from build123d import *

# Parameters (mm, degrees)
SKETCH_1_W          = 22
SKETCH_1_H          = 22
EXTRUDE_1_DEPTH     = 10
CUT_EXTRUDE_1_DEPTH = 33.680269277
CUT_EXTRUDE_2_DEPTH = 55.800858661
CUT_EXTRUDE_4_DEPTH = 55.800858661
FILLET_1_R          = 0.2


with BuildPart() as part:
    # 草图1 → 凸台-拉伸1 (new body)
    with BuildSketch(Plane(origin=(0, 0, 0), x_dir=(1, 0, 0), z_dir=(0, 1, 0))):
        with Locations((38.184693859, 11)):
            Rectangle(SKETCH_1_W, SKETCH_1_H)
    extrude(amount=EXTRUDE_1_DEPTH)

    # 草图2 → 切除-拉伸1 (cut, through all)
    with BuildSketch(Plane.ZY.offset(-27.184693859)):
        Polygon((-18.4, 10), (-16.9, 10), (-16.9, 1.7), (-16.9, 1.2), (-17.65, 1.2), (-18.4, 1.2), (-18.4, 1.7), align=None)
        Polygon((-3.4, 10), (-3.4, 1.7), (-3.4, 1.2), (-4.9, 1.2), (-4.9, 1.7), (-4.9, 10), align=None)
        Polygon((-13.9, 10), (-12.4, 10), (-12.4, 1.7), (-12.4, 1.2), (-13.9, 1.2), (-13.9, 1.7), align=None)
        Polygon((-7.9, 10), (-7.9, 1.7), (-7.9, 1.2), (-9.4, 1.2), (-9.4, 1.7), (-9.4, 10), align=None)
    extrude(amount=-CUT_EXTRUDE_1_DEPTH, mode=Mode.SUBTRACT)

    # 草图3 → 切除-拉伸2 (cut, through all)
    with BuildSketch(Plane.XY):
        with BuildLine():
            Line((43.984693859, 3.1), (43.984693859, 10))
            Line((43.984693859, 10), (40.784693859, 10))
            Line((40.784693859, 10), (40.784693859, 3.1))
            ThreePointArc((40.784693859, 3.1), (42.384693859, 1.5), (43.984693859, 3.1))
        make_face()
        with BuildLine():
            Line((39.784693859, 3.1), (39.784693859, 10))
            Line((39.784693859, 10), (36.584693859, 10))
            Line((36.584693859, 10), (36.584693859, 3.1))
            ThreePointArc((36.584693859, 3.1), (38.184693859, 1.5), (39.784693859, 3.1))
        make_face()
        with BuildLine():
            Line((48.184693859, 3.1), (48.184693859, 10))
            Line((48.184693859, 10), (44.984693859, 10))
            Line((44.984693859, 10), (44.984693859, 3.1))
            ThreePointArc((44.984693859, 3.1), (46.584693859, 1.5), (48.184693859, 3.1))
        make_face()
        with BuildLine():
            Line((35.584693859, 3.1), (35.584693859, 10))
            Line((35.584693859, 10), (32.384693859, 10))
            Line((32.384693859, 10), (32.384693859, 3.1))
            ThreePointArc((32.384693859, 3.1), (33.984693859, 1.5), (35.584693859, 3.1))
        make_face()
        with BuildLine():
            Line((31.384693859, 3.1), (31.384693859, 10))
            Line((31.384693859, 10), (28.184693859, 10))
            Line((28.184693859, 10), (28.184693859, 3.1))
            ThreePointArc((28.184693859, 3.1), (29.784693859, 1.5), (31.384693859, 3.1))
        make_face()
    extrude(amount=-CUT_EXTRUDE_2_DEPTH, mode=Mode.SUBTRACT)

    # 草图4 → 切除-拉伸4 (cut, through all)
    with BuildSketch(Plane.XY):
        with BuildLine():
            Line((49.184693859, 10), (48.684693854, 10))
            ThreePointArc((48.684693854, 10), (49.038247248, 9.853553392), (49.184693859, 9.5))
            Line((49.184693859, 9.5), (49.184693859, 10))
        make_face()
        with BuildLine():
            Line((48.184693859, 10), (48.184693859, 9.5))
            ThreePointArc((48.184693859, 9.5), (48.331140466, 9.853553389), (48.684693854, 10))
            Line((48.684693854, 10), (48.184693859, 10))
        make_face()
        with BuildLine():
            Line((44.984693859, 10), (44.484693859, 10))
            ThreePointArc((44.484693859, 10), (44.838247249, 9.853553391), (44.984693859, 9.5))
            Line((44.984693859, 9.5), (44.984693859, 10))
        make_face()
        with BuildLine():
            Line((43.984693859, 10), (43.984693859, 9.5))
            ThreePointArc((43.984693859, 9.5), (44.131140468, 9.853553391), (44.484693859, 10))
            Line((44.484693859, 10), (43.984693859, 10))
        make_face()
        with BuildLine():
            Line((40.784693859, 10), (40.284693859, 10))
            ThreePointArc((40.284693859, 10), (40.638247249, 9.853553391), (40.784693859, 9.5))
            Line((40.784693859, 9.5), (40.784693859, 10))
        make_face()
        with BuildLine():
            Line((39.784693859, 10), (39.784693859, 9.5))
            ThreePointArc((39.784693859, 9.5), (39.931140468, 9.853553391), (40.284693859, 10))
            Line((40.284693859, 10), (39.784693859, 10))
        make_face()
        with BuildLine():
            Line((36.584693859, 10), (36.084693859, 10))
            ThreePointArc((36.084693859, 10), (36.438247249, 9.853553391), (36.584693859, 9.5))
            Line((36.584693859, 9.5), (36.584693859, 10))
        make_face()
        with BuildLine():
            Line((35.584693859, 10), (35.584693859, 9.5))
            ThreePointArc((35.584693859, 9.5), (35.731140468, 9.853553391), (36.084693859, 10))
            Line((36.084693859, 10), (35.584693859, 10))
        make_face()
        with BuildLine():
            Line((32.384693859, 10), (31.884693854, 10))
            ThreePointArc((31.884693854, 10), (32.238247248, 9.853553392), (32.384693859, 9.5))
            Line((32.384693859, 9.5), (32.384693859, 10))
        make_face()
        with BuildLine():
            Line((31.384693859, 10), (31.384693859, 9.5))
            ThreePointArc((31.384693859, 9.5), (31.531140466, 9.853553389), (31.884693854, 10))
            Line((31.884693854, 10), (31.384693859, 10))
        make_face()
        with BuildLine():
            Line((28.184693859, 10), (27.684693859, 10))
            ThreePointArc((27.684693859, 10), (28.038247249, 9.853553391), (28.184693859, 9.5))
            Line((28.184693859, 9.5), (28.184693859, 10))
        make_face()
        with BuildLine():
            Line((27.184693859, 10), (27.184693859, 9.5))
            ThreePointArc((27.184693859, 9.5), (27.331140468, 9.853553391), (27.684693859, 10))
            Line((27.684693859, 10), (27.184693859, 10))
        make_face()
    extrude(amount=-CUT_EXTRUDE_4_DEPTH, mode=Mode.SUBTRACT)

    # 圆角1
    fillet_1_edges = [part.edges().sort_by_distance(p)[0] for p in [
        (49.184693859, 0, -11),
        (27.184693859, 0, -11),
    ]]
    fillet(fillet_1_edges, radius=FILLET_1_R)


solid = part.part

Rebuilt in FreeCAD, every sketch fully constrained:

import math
import FreeCAD as App
import Part
import Sketcher

V = App.Vector
Q = App.Units.Quantity


def edges_at(feature, points):
    """Names of the edges that pass closest to the given points."""
    edges = feature.Shape.Edges
    near = lambda p: min(range(len(edges)), key=lambda i: edges[i].distToShape(Part.Vertex(*p))[0])
    return sorted({f"Edge{near(p) + 1}" for p in points})

doc = App.newDocument("Part")
body = doc.addObject("PartDesign::Body", "Body")

sketch1 = body.newObject("Sketcher::SketchObject", "Sketch")
sketch1.AttachmentSupport = (doc.getObject("XZ_Plane"), [""])
sketch1.MapMode = "FlatFace"
sketch1.addGeometry(Part.LineSegment(V(27, -22, 0), V(27, 0, 0)), False)
sketch1.addGeometry(Part.LineSegment(V(27, 0, 0), V(49, 0, 0)), False)
sketch1.addGeometry(Part.LineSegment(V(49, 0, 0), V(49, -22, 0)), False)
sketch1.addGeometry(Part.LineSegment(V(49, -22, 0), V(27, -22, 0)), False)
sketch1.addConstraint(Sketcher.Constraint("Coincident", 0, 2, 1, 1))
sketch1.addConstraint(Sketcher.Constraint("Coincident", 1, 2, 2, 1))
sketch1.addConstraint(Sketcher.Constraint("Coincident", 2, 2, 3, 1))
sketch1.addConstraint(Sketcher.Constraint("Coincident", 3, 2, 0, 1))
sketch1.addConstraint(Sketcher.Constraint("Vertical", 0))
sketch1.addConstraint(Sketcher.Constraint("Horizontal", 1))
sketch1.addConstraint(Sketcher.Constraint("Vertical", 2))
sketch1.addConstraint(Sketcher.Constraint("Horizontal", 3))
sketch1.addConstraint(Sketcher.Constraint("PointOnObject", 0, 2, -1))
sketch1.addConstraint(Sketcher.Constraint("Equal", 3, 0))
sketch1.addConstraint(Sketcher.Constraint("DistanceX", 1, 1, 1, 2, Q("22 mm")))
sketch1.addConstraint(Sketcher.Constraint("DistanceX", -1, 1, 0, 2, Q("27.184694 mm")))
pad1 = body.newObject("PartDesign::Pad", "Pad")
pad1.Profile = sketch1
pad1.Length = 10
pad1.Reversed = True

sketch2 = body.newObject("Sketcher::SketchObject", "Sketch001")
sketch2.AttachmentSupport = (doc.getObject("YZ_Plane"), [""])
sketch2.MapMode = "FlatFace"
sketch2.AttachmentOffset = App.Placement(V(0, 0, 27.184694), App.Rotation())
sketch2.addGeometry(Part.LineSegment(V(10, -16.9, 0), V(10, -18.4, 0)), False)
sketch2.addGeometry(Part.LineSegment(V(10, -18.4, 0), V(1.2, -18.4, 0)), False)
sketch2.addGeometry(Part.LineSegment(V(1.2, -18.4, 0), V(1.2, -16.9, 0)), False)
sketch2.addGeometry(Part.LineSegment(V(1.2, -16.9, 0), V(10, -16.9, 0)), False)
sketch2.addGeometry(Part.LineSegment(V(1.2, -3.4, 0), V(10, -3.4, 0)), False)
sketch2.addGeometry(Part.LineSegment(V(10, -3.4, 0), V(10, -4.9, 0)), False)
sketch2.addGeometry(Part.LineSegment(V(10, -4.9, 0), V(1.2, -4.9, 0)), False)
sketch2.addGeometry(Part.LineSegment(V(1.2, -4.9, 0), V(1.2, -3.4, 0)), False)
sketch2.addGeometry(Part.LineSegment(V(10, -12.4, 0), V(10, -13.9, 0)), False)
sketch2.addGeometry(Part.LineSegment(V(10, -13.9, 0), V(1.2, -13.9, 0)), False)
sketch2.addGeometry(Part.LineSegment(V(1.2, -13.9, 0), V(1.2, -12.4, 0)), False)
sketch2.addGeometry(Part.LineSegment(V(1.2, -12.4, 0), V(10, -12.4, 0)), False)
sketch2.addGeometry(Part.LineSegment(V(1.2, -7.9, 0), V(10, -7.9, 0)), False)
sketch2.addGeometry(Part.LineSegment(V(10, -7.9, 0), V(10, -9.4, 0)), False)
sketch2.addGeometry(Part.LineSegment(V(10, -9.4, 0), V(1.2, -9.4, 0)), False)
sketch2.addGeometry(Part.LineSegment(V(1.2, -9.4, 0), V(1.2, -7.9, 0)), False)
sketch2.addConstraint(Sketcher.Constraint("Coincident", 0, 2, 1, 1))
sketch2.addConstraint(Sketcher.Constraint("Coincident", 1, 2, 2, 1))
sketch2.addConstraint(Sketcher.Constraint("Coincident", 2, 2, 3, 1))
sketch2.addConstraint(Sketcher.Constraint("Coincident", 3, 2, 0, 1))
sketch2.addConstraint(Sketcher.Constraint("Coincident", 4, 2, 5, 1))
sketch2.addConstraint(Sketcher.Constraint("Coincident", 5, 2, 6, 1))
sketch2.addConstraint(Sketcher.Constraint("Coincident", 6, 2, 7, 1))
sketch2.addConstraint(Sketcher.Constraint("Coincident", 7, 2, 4, 1))
sketch2.addConstraint(Sketcher.Constraint("Coincident", 8, 2, 9, 1))
sketch2.addConstraint(Sketcher.Constraint("Coincident", 9, 2, 10, 1))
sketch2.addConstraint(Sketcher.Constraint("Coincident", 10, 2, 11, 1))
sketch2.addConstraint(Sketcher.Constraint("Coincident", 11, 2, 8, 1))
sketch2.addConstraint(Sketcher.Constraint("Coincident", 12, 2, 13, 1))
sketch2.addConstraint(Sketcher.Constraint("Coincident", 13, 2, 14, 1))
sketch2.addConstraint(Sketcher.Constraint("Coincident", 14, 2, 15, 1))
sketch2.addConstraint(Sketcher.Constraint("Coincident", 15, 2, 12, 1))
sketch2.addConstraint(Sketcher.Constraint("Vertical", 0))
sketch2.addConstraint(Sketcher.Constraint("Horizontal", 1))
sketch2.addConstraint(Sketcher.Constraint("Vertical", 2))
sketch2.addConstraint(Sketcher.Constraint("Horizontal", 3))
sketch2.addConstraint(Sketcher.Constraint("Horizontal", 4))
sketch2.addConstraint(Sketcher.Constraint("Vertical", 5))
sketch2.addConstraint(Sketcher.Constraint("Horizontal", 6))
sketch2.addConstraint(Sketcher.Constraint("Vertical", 7))
sketch2.addConstraint(Sketcher.Constraint("Vertical", 8))
sketch2.addConstraint(Sketcher.Constraint("Horizontal", 9))
sketch2.addConstraint(Sketcher.Constraint("Vertical", 10))
sketch2.addConstraint(Sketcher.Constraint("Horizontal", 11))
sketch2.addConstraint(Sketcher.Constraint("Horizontal", 12))
sketch2.addConstraint(Sketcher.Constraint("Vertical", 13))
sketch2.addConstraint(Sketcher.Constraint("Horizontal", 14))
sketch2.addConstraint(Sketcher.Constraint("Vertical", 15))
sketch2.addConstraint(Sketcher.Constraint("Vertical", 3, 2, 4, 2))
sketch2.addConstraint(Sketcher.Constraint("Vertical", 2, 2, 6, 2))
sketch2.addConstraint(Sketcher.Constraint("Vertical", 5, 2, 8, 2))
sketch2.addConstraint(Sketcher.Constraint("Vertical", 7, 2, 9, 2))
sketch2.addConstraint(Sketcher.Constraint("Vertical", 11, 2, 12, 2))
sketch2.addConstraint(Sketcher.Constraint("Vertical", 10, 2, 14, 2))
sketch2.addConstraint(Sketcher.Constraint("Equal", 2, 5))
sketch2.addConstraint(Sketcher.Constraint("Equal", 7, 8))
sketch2.addConstraint(Sketcher.Constraint("Equal", 10, 13))
sketch2.addConstraint(Sketcher.Constraint("DistanceX", 1, 2, 1, 1, Q("8.8 mm")))
sketch2.addConstraint(Sketcher.Constraint("DistanceY", 0, 2, 0, 1, Q("1.5 mm")))
sketch2.addConstraint(Sketcher.Constraint("DistanceX", -1, 1, 0, 2, Q("10 mm")))
sketch2.addConstraint(Sketcher.Constraint("DistanceY", 0, 2, 4, 2, Q("15 mm")))
sketch2.addConstraint(Sketcher.Constraint("DistanceY", 3, 2, 8, 2, Q("3 mm")))
sketch2.addConstraint(Sketcher.Constraint("DistanceY", 12, 2, 5, 2, Q("3 mm")))
sketch2.addConstraint(Sketcher.Constraint("DistanceY", 0, 2, -1, 1, Q("18.4 mm")))
pocket1 = body.newObject("PartDesign::Pocket", "Pocket")
pocket1.Profile = sketch2
pocket1.Type = "ThroughAll"
pocket1.Reversed = True

sketch3 = body.newObject("Sketcher::SketchObject", "Sketch002")
sketch3.AttachmentSupport = (doc.getObject("XY_Plane"), [""])
sketch3.MapMode = "FlatFace"
sketch3.addGeometry(Part.LineSegment(V(44, 3.1, 0), V(44, 10, 0)), False)
sketch3.addGeometry(Part.LineSegment(V(44, 10, 0), V(40.8, 10, 0)), False)
sketch3.addGeometry(Part.LineSegment(V(40.8, 10, 0), V(40.8, 3.1, 0)), False)
sketch3.addGeometry(Part.ArcOfCircle(Part.Circle(V(42.4, 3.1, 0), V(0, 0, 1), 1.6), math.radians(180), math.radians(360)), False)
sketch3.addGeometry(Part.LineSegment(V(39.8, 3.1, 0), V(39.8, 10, 0)), False)
sketch3.addGeometry(Part.LineSegment(V(39.8, 10, 0), V(36.6, 10, 0)), False)
sketch3.addGeometry(Part.LineSegment(V(36.6, 10, 0), V(36.6, 3.1, 0)), False)
sketch3.addGeometry(Part.ArcOfCircle(Part.Circle(V(38.2, 3.1, 0), V(0, 0, 1), 1.6), math.radians(180), math.radians(360)), False)
sketch3.addGeometry(Part.LineSegment(V(48.2, 3.1, 0), V(48.2, 10, 0)), False)
sketch3.addGeometry(Part.LineSegment(V(48.2, 10, 0), V(45, 10, 0)), False)
sketch3.addGeometry(Part.LineSegment(V(45, 10, 0), V(45, 3.1, 0)), False)
sketch3.addGeometry(Part.ArcOfCircle(Part.Circle(V(46.6, 3.1, 0), V(0, 0, 1), 1.6), math.radians(180), math.radians(360)), False)
sketch3.addGeometry(Part.LineSegment(V(35.6, 3.1, 0), V(35.6, 10, 0)), False)
sketch3.addGeometry(Part.LineSegment(V(35.6, 10, 0), V(32.4, 10, 0)), False)
sketch3.addGeometry(Part.LineSegment(V(32.4, 10, 0), V(32.4, 3.1, 0)), False)
sketch3.addGeometry(Part.ArcOfCircle(Part.Circle(V(34, 3.1, 0), V(0, 0, 1), 1.6), math.radians(180), math.radians(360)), False)
sketch3.addGeometry(Part.LineSegment(V(31.4, 3.1, 0), V(31.4, 10, 0)), False)
sketch3.addGeometry(Part.LineSegment(V(31.4, 10, 0), V(28.2, 10, 0)), False)
sketch3.addGeometry(Part.LineSegment(V(28.2, 10, 0), V(28.2, 3.1, 0)), False)
sketch3.addGeometry(Part.ArcOfCircle(Part.Circle(V(29.8, 3.1, 0), V(0, 0, 1), 1.6), math.radians(180), math.radians(360)), False)
sketch3.addConstraint(Sketcher.Constraint("Coincident", 0, 2, 1, 1))
sketch3.addConstraint(Sketcher.Constraint("Coincident", 1, 2, 2, 1))
sketch3.addConstraint(Sketcher.Constraint("Tangent", 2, 2, 3, 1))
sketch3.addConstraint(Sketcher.Constraint("Tangent", 3, 2, 0, 1))
sketch3.addConstraint(Sketcher.Constraint("Coincident", 4, 2, 5, 1))
sketch3.addConstraint(Sketcher.Constraint("Coincident", 5, 2, 6, 1))
sketch3.addConstraint(Sketcher.Constraint("Tangent", 6, 2, 7, 1))
sketch3.addConstraint(Sketcher.Constraint("Tangent", 7, 2, 4, 1))
sketch3.addConstraint(Sketcher.Constraint("Coincident", 8, 2, 9, 1))
sketch3.addConstraint(Sketcher.Constraint("Coincident", 9, 2, 10, 1))
sketch3.addConstraint(Sketcher.Constraint("Tangent", 10, 2, 11, 1))
sketch3.addConstraint(Sketcher.Constraint("Tangent", 11, 2, 8, 1))
sketch3.addConstraint(Sketcher.Constraint("Coincident", 12, 2, 13, 1))
sketch3.addConstraint(Sketcher.Constraint("Coincident", 13, 2, 14, 1))
sketch3.addConstraint(Sketcher.Constraint("Tangent", 14, 2, 15, 1))
sketch3.addConstraint(Sketcher.Constraint("Tangent", 15, 2, 12, 1))
sketch3.addConstraint(Sketcher.Constraint("Coincident", 16, 2, 17, 1))
sketch3.addConstraint(Sketcher.Constraint("Coincident", 17, 2, 18, 1))
sketch3.addConstraint(Sketcher.Constraint("Tangent", 18, 2, 19, 1))
sketch3.addConstraint(Sketcher.Constraint("Tangent", 19, 2, 16, 1))
sketch3.addConstraint(Sketcher.Constraint("Vertical", 0))
sketch3.addConstraint(Sketcher.Constraint("Horizontal", 1))
sketch3.addConstraint(Sketcher.Constraint("Vertical", 2))
sketch3.addConstraint(Sketcher.Constraint("Vertical", 4))
sketch3.addConstraint(Sketcher.Constraint("Horizontal", 5))
sketch3.addConstraint(Sketcher.Constraint("Vertical", 6))
sketch3.addConstraint(Sketcher.Constraint("Vertical", 8))
sketch3.addConstraint(Sketcher.Constraint("Horizontal", 9))
sketch3.addConstraint(Sketcher.Constraint("Vertical", 10))
sketch3.addConstraint(Sketcher.Constraint("Vertical", 12))
sketch3.addConstraint(Sketcher.Constraint("Horizontal", 13))
sketch3.addConstraint(Sketcher.Constraint("Vertical", 14))
sketch3.addConstraint(Sketcher.Constraint("Vertical", 16))
sketch3.addConstraint(Sketcher.Constraint("Horizontal", 17))
sketch3.addConstraint(Sketcher.Constraint("Vertical", 18))
sketch3.addConstraint(Sketcher.Constraint("Equal", 3, 7))
sketch3.addConstraint(Sketcher.Constraint("Equal", 7, 11))
sketch3.addConstraint(Sketcher.Constraint("Equal", 11, 15))
sketch3.addConstraint(Sketcher.Constraint("Equal", 15, 19))
sketch3.addConstraint(Sketcher.Constraint("Horizontal", 3, 3, 7, 3))
sketch3.addConstraint(Sketcher.Constraint("Horizontal", 7, 3, 11, 3))
sketch3.addConstraint(Sketcher.Constraint("Horizontal", 11, 3, 15, 3))
sketch3.addConstraint(Sketcher.Constraint("Horizontal", 15, 3, 19, 3))
sketch3.addConstraint(Sketcher.Constraint("Horizontal", 1, 2, 4, 2))
sketch3.addConstraint(Sketcher.Constraint("Horizontal", 5, 2, 8, 2))
sketch3.addConstraint(Sketcher.Constraint("Horizontal", 9, 2, 12, 2))
sketch3.addConstraint(Sketcher.Constraint("Horizontal", 13, 2, 16, 2))
sketch3.addConstraint(Sketcher.Constraint("Radius", 3, Q("1.6 mm")))
sketch3.addConstraint(Sketcher.Constraint("DistanceY", 0, 1, 0, 2, Q("6.9 mm")))
sketch3.addConstraint(Sketcher.Constraint("DistanceY", -1, 1, 0, 2, Q("10 mm")))
sketch3.addConstraint(Sketcher.Constraint("DistanceX", 15, 3, 0, 2, Q("10 mm")))
sketch3.addConstraint(Sketcher.Constraint("DistanceX", 4, 2, 1, 2, Q("1 mm")))
sketch3.addConstraint(Sketcher.Constraint("DistanceX", 0, 2, 9, 2, Q("1 mm")))
sketch3.addConstraint(Sketcher.Constraint("DistanceX", 16, 2, 13, 2, Q("1 mm")))
sketch3.addConstraint(Sketcher.Constraint("DistanceX", -1, 1, 3, 3, Q("42.384694 mm")))
pocket2 = body.newObject("PartDesign::Pocket", "Pocket001")
pocket2.Profile = sketch3
pocket2.Type = "ThroughAll"

sketch4 = body.newObject("Sketcher::SketchObject", "Sketch003")
sketch4.AttachmentSupport = (doc.getObject("XY_Plane"), [""])
sketch4.MapMode = "FlatFace"
sketch4.addGeometry(Part.LineSegment(V(49.18, 10, 0), V(48.68, 10, 0)), False)
sketch4.addGeometry(Part.ArcOfCircle(Part.Circle(V(48.68, 9.5, 0), V(0, 0, 1), 0.5), math.radians(0), math.radians(90)), False)
sketch4.addGeometry(Part.LineSegment(V(49.18, 9.5, 0), V(49.18, 10, 0)), False)
sketch4.addGeometry(Part.LineSegment(V(48.18, 10, 0), V(48.18, 9.5, 0)), False)
sketch4.addGeometry(Part.ArcOfCircle(Part.Circle(V(48.68, 9.5, 0), V(0, 0, 1), 0.5), math.radians(90), math.radians(180)), False)
sketch4.addGeometry(Part.LineSegment(V(48.68, 10, 0), V(48.18, 10, 0)), False)
sketch4.addGeometry(Part.LineSegment(V(44.98, 10, 0), V(44.48, 10, 0)), False)
sketch4.addGeometry(Part.ArcOfCircle(Part.Circle(V(44.48, 9.5, 0), V(0, 0, 1), 0.5), math.radians(0), math.radians(90)), False)
sketch4.addGeometry(Part.LineSegment(V(44.98, 9.5, 0), V(44.98, 10, 0)), False)
sketch4.addGeometry(Part.LineSegment(V(43.98, 10, 0), V(43.98, 9.5, 0)), False)
sketch4.addGeometry(Part.ArcOfCircle(Part.Circle(V(44.48, 9.5, 0), V(0, 0, 1), 0.5), math.radians(90), math.radians(180)), False)
sketch4.addGeometry(Part.LineSegment(V(44.48, 10, 0), V(43.98, 10, 0)), False)
sketch4.addGeometry(Part.LineSegment(V(40.78, 10, 0), V(40.28, 10, 0)), False)
sketch4.addGeometry(Part.ArcOfCircle(Part.Circle(V(40.28, 9.5, 0), V(0, 0, 1), 0.5), math.radians(0), math.radians(90)), False)
sketch4.addGeometry(Part.LineSegment(V(40.78, 9.5, 0), V(40.78, 10, 0)), False)
sketch4.addGeometry(Part.LineSegment(V(39.78, 10, 0), V(39.78, 9.5, 0)), False)
sketch4.addGeometry(Part.ArcOfCircle(Part.Circle(V(40.28, 9.5, 0), V(0, 0, 1), 0.5), math.radians(90), math.radians(180)), False)
sketch4.addGeometry(Part.LineSegment(V(40.28, 10, 0), V(39.78, 10, 0)), False)
sketch4.addGeometry(Part.LineSegment(V(36.58, 10, 0), V(36.08, 10, 0)), False)
sketch4.addGeometry(Part.ArcOfCircle(Part.Circle(V(36.08, 9.5, 0), V(0, 0, 1), 0.5), math.radians(0), math.radians(90)), False)
sketch4.addGeometry(Part.LineSegment(V(36.58, 9.5, 0), V(36.58, 10, 0)), False)
sketch4.addGeometry(Part.LineSegment(V(35.58, 10, 0), V(35.58, 9.5, 0)), False)
sketch4.addGeometry(Part.ArcOfCircle(Part.Circle(V(36.08, 9.5, 0), V(0, 0, 1), 0.5), math.radians(90), math.radians(180)), False)
sketch4.addGeometry(Part.LineSegment(V(36.08, 10, 0), V(35.58, 10, 0)), False)
sketch4.addGeometry(Part.LineSegment(V(32.38, 10, 0), V(31.88, 10, 0)), False)
sketch4.addGeometry(Part.ArcOfCircle(Part.Circle(V(31.88, 9.5, 0), V(0, 0, 1), 0.5), math.radians(0), math.radians(90)), False)
sketch4.addGeometry(Part.LineSegment(V(32.38, 9.5, 0), V(32.38, 10, 0)), False)
sketch4.addGeometry(Part.LineSegment(V(31.38, 10, 0), V(31.38, 9.5, 0)), False)
sketch4.addGeometry(Part.ArcOfCircle(Part.Circle(V(31.88, 9.5, 0), V(0, 0, 1), 0.5), math.radians(90), math.radians(180)), False)
sketch4.addGeometry(Part.LineSegment(V(31.88, 10, 0), V(31.38, 10, 0)), False)
sketch4.addGeometry(Part.LineSegment(V(28.18, 10, 0), V(27.68, 10, 0)), False)
sketch4.addGeometry(Part.ArcOfCircle(Part.Circle(V(27.68, 9.5, 0), V(0, 0, 1), 0.5), math.radians(0), math.radians(90)), False)
sketch4.addGeometry(Part.LineSegment(V(28.18, 9.5, 0), V(28.18, 10, 0)), False)
sketch4.addGeometry(Part.LineSegment(V(27.18, 10, 0), V(27.18, 9.5, 0)), False)
sketch4.addGeometry(Part.ArcOfCircle(Part.Circle(V(27.68, 9.5, 0), V(0, 0, 1), 0.5), math.radians(90), math.radians(180)), False)
sketch4.addGeometry(Part.LineSegment(V(27.68, 10, 0), V(27.18, 10, 0)), False)
sketch4.addConstraint(Sketcher.Constraint("Tangent", 0, 2, 1, 2))
sketch4.addConstraint(Sketcher.Constraint("Tangent", 1, 1, 2, 1))
sketch4.addConstraint(Sketcher.Constraint("Coincident", 2, 2, 0, 1))
sketch4.addConstraint(Sketcher.Constraint("Tangent", 3, 2, 4, 2))
sketch4.addConstraint(Sketcher.Constraint("Tangent", 4, 1, 5, 1))
sketch4.addConstraint(Sketcher.Constraint("Coincident", 5, 2, 3, 1))
sketch4.addConstraint(Sketcher.Constraint("Tangent", 6, 2, 7, 2))
sketch4.addConstraint(Sketcher.Constraint("Tangent", 7, 1, 8, 1))
sketch4.addConstraint(Sketcher.Constraint("Coincident", 8, 2, 6, 1))
sketch4.addConstraint(Sketcher.Constraint("Tangent", 9, 2, 10, 2))
sketch4.addConstraint(Sketcher.Constraint("Tangent", 10, 1, 11, 1))
sketch4.addConstraint(Sketcher.Constraint("Coincident", 11, 2, 9, 1))
sketch4.addConstraint(Sketcher.Constraint("Tangent", 12, 2, 13, 2))
sketch4.addConstraint(Sketcher.Constraint("Tangent", 13, 1, 14, 1))
sketch4.addConstraint(Sketcher.Constraint("Coincident", 14, 2, 12, 1))
sketch4.addConstraint(Sketcher.Constraint("Tangent", 15, 2, 16, 2))
sketch4.addConstraint(Sketcher.Constraint("Tangent", 16, 1, 17, 1))
sketch4.addConstraint(Sketcher.Constraint("Coincident", 17, 2, 15, 1))
sketch4.addConstraint(Sketcher.Constraint("Tangent", 18, 2, 19, 2))
sketch4.addConstraint(Sketcher.Constraint("Tangent", 19, 1, 20, 1))
sketch4.addConstraint(Sketcher.Constraint("Coincident", 20, 2, 18, 1))
sketch4.addConstraint(Sketcher.Constraint("Tangent", 21, 2, 22, 2))
sketch4.addConstraint(Sketcher.Constraint("Tangent", 22, 1, 23, 1))
sketch4.addConstraint(Sketcher.Constraint("Coincident", 23, 2, 21, 1))
sketch4.addConstraint(Sketcher.Constraint("Tangent", 24, 2, 25, 2))
sketch4.addConstraint(Sketcher.Constraint("Tangent", 25, 1, 26, 1))
sketch4.addConstraint(Sketcher.Constraint("Coincident", 26, 2, 24, 1))
sketch4.addConstraint(Sketcher.Constraint("Tangent", 27, 2, 28, 2))
sketch4.addConstraint(Sketcher.Constraint("Tangent", 28, 1, 29, 1))
sketch4.addConstraint(Sketcher.Constraint("Coincident", 29, 2, 27, 1))
sketch4.addConstraint(Sketcher.Constraint("Tangent", 30, 2, 31, 2))
sketch4.addConstraint(Sketcher.Constraint("Tangent", 31, 1, 32, 1))
sketch4.addConstraint(Sketcher.Constraint("Coincident", 32, 2, 30, 1))
sketch4.addConstraint(Sketcher.Constraint("Tangent", 33, 2, 34, 2))
sketch4.addConstraint(Sketcher.Constraint("Tangent", 34, 1, 35, 1))
sketch4.addConstraint(Sketcher.Constraint("Coincident", 35, 2, 33, 1))
sketch4.addConstraint(Sketcher.Constraint("Horizontal", 0))
sketch4.addConstraint(Sketcher.Constraint("Vertical", 2))
sketch4.addConstraint(Sketcher.Constraint("Vertical", 3))
sketch4.addConstraint(Sketcher.Constraint("Horizontal", 5))
sketch4.addConstraint(Sketcher.Constraint("Horizontal", 6))
sketch4.addConstraint(Sketcher.Constraint("Vertical", 8))
sketch4.addConstraint(Sketcher.Constraint("Vertical", 9))
sketch4.addConstraint(Sketcher.Constraint("Horizontal", 11))
sketch4.addConstraint(Sketcher.Constraint("Horizontal", 12))
sketch4.addConstraint(Sketcher.Constraint("Vertical", 14))
sketch4.addConstraint(Sketcher.Constraint("Vertical", 15))
sketch4.addConstraint(Sketcher.Constraint("Horizontal", 17))
sketch4.addConstraint(Sketcher.Constraint("Horizontal", 18))
sketch4.addConstraint(Sketcher.Constraint("Vertical", 20))
sketch4.addConstraint(Sketcher.Constraint("Vertical", 21))
sketch4.addConstraint(Sketcher.Constraint("Horizontal", 23))
sketch4.addConstraint(Sketcher.Constraint("Horizontal", 24))
sketch4.addConstraint(Sketcher.Constraint("Vertical", 26))
sketch4.addConstraint(Sketcher.Constraint("Vertical", 27))
sketch4.addConstraint(Sketcher.Constraint("Horizontal", 29))
sketch4.addConstraint(Sketcher.Constraint("Horizontal", 30))
sketch4.addConstraint(Sketcher.Constraint("Vertical", 32))
sketch4.addConstraint(Sketcher.Constraint("Vertical", 33))
sketch4.addConstraint(Sketcher.Constraint("Horizontal", 35))
sketch4.addConstraint(Sketcher.Constraint("Coincident", 4, 3, 1, 3))
sketch4.addConstraint(Sketcher.Constraint("Coincident", 10, 3, 7, 3))
sketch4.addConstraint(Sketcher.Constraint("Coincident", 16, 3, 13, 3))
sketch4.addConstraint(Sketcher.Constraint("Coincident", 22, 3, 19, 3))
sketch4.addConstraint(Sketcher.Constraint("Coincident", 28, 3, 25, 3))
sketch4.addConstraint(Sketcher.Constraint("Coincident", 34, 3, 31, 3))
sketch4.addConstraint(Sketcher.Constraint("Equal", 1, 4))
sketch4.addConstraint(Sketcher.Constraint("Equal", 4, 7))
sketch4.addConstraint(Sketcher.Constraint("Equal", 7, 10))
sketch4.addConstraint(Sketcher.Constraint("Equal", 10, 13))
sketch4.addConstraint(Sketcher.Constraint("Equal", 13, 16))
sketch4.addConstraint(Sketcher.Constraint("Equal", 16, 19))
sketch4.addConstraint(Sketcher.Constraint("Equal", 19, 22))
sketch4.addConstraint(Sketcher.Constraint("Equal", 22, 25))
sketch4.addConstraint(Sketcher.Constraint("Equal", 25, 28))
sketch4.addConstraint(Sketcher.Constraint("Equal", 28, 31))
sketch4.addConstraint(Sketcher.Constraint("Equal", 31, 34))
sketch4.addConstraint(Sketcher.Constraint("Horizontal", 4, 3, 7, 3))
sketch4.addConstraint(Sketcher.Constraint("Horizontal", 10, 3, 13, 3))
sketch4.addConstraint(Sketcher.Constraint("Horizontal", 16, 3, 19, 3))
sketch4.addConstraint(Sketcher.Constraint("Horizontal", 22, 3, 25, 3))
sketch4.addConstraint(Sketcher.Constraint("Horizontal", 28, 3, 31, 3))
sketch4.addConstraint(Sketcher.Constraint("Radius", 1, Q("0.5 mm")))
sketch4.addConstraint(Sketcher.Constraint("DistanceY", -1, 1, 0, 2, Q("10 mm")))
sketch4.addConstraint(Sketcher.Constraint("DistanceX", 7, 3, 4, 3, Q("4.2 mm")))
sketch4.addConstraint(Sketcher.Constraint("DistanceX", 13, 3, 10, 3, Q("4.2 mm")))
sketch4.addConstraint(Sketcher.Constraint("DistanceX", 19, 3, 16, 3, Q("4.2 mm")))
sketch4.addConstraint(Sketcher.Constraint("DistanceX", 25, 3, 22, 3, Q("4.2 mm")))
sketch4.addConstraint(Sketcher.Constraint("DistanceX", 31, 3, 28, 3, Q("4.2 mm")))
sketch4.addConstraint(Sketcher.Constraint("DistanceX", -1, 1, 1, 3, Q("48.684694 mm")))
pocket3 = body.newObject("PartDesign::Pocket", "Pocket002")
pocket3.Profile = sketch4
pocket3.Type = "ThroughAll"
doc.recompute()

fillet = body.newObject("PartDesign::Fillet", "Fillet")
fillet.Base = (pocket3, edges_at(pocket3, [(49.185, 0, -11), (27.185, 0, -11)]))
fillet.Radius = 0.2

doc.recompute()
